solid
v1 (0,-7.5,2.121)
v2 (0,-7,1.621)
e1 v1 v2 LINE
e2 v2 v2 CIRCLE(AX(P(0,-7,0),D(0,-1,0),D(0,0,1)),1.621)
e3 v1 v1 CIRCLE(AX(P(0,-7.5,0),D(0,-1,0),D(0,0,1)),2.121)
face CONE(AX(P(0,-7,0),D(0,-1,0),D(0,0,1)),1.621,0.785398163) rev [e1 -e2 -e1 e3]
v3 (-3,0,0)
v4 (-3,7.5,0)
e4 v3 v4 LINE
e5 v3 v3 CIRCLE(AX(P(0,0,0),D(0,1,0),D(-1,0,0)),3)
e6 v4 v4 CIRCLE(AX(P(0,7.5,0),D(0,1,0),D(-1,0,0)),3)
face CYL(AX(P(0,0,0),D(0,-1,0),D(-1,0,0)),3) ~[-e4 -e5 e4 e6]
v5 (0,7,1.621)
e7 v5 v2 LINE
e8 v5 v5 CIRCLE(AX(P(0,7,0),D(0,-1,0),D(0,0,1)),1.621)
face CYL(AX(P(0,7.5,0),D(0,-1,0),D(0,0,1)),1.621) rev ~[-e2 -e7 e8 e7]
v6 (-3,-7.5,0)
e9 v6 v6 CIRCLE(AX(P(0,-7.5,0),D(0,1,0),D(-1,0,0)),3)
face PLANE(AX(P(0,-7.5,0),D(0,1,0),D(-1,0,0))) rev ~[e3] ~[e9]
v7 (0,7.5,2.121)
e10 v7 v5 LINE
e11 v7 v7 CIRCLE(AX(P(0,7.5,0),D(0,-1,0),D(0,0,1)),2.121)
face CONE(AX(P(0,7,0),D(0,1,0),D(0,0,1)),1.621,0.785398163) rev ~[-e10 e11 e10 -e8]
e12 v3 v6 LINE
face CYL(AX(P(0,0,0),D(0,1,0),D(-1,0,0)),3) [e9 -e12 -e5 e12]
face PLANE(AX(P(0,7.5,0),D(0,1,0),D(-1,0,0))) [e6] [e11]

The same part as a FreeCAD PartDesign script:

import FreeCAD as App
import Part
import Sketcher
from FreeCAD import Vector
Q = App.Units.Quantity


def edges_at(feature, points):
    """Names of the edges that pass closest to the given points."""
    edges = feature.Shape.Edges
    near = lambda p: min(range(len(edges)), key=lambda i: edges[i].distToShape(Part.Vertex(*p))[0])
    return sorted({f"Edge{near(p) + 1}" for p in points})

doc = App.newDocument("Part")
body = doc.addObject("PartDesign::Body", "Body")

sketch1 = body.newObject("Sketcher::SketchObject", "Sketch")
sketch1.AttachmentSupport = (doc.getObject("XZ_Plane"), [""])
sketch1.MapMode = "FlatFace"
sketch1.addGeometry(Part.Circle(Vector(0, 0, 0), Vector(0, 0, 1), 3), False)
sketch1.addConstraint([
    Sketcher.Constraint("Coincident", 0, 3, -1, 1),
    Sketcher.Constraint("Diameter", 0, Q("6 mm")),
])
pad1 = body.newObject("PartDesign::Pad", "Pad")
pad1.Profile = sketch1
pad1.Length = 15
pad1.Midplane = True

sketch2 = body.newObject("Sketcher::SketchObject", "Sketch001")
sketch2.AttachmentSupport = (doc.getObject("XZ_Plane"), [""])
sketch2.MapMode = "FlatFace"
sketch2.AttachmentOffset = App.Placement(Vector(0, 0, -7.5), App.Rotation())
sketch2.addGeometry(Part.Circle(Vector(0, 0, 0), Vector(0, 0, 1), 1.6), False)
sketch2.addConstraint([
    Sketcher.Constraint("Coincident", 0, 3, -1, 1),
    Sketcher.Constraint("Diameter", 0, Q("3.242 mm")),
])
doc.recompute()
hole = body.newObject("PartDesign::Hole", "Hole")
hole.Profile = sketch2
hole.ThreadType = "None"
hole.Diameter = 3.242
hole.DepthType = "Dimension"
hole.Depth = 15
hole.DrillPoint = "Flat"
hole.Reversed = True
doc.recompute()

chamfer = body.newObject("PartDesign::Chamfer", "Chamfer")
chamfer.Base = (hole, edges_at(hole, [(0, 7.5, -1.621), (0, -7.5, -1.621)]))
chamfer.Size = 0.5

doc.recompute()
